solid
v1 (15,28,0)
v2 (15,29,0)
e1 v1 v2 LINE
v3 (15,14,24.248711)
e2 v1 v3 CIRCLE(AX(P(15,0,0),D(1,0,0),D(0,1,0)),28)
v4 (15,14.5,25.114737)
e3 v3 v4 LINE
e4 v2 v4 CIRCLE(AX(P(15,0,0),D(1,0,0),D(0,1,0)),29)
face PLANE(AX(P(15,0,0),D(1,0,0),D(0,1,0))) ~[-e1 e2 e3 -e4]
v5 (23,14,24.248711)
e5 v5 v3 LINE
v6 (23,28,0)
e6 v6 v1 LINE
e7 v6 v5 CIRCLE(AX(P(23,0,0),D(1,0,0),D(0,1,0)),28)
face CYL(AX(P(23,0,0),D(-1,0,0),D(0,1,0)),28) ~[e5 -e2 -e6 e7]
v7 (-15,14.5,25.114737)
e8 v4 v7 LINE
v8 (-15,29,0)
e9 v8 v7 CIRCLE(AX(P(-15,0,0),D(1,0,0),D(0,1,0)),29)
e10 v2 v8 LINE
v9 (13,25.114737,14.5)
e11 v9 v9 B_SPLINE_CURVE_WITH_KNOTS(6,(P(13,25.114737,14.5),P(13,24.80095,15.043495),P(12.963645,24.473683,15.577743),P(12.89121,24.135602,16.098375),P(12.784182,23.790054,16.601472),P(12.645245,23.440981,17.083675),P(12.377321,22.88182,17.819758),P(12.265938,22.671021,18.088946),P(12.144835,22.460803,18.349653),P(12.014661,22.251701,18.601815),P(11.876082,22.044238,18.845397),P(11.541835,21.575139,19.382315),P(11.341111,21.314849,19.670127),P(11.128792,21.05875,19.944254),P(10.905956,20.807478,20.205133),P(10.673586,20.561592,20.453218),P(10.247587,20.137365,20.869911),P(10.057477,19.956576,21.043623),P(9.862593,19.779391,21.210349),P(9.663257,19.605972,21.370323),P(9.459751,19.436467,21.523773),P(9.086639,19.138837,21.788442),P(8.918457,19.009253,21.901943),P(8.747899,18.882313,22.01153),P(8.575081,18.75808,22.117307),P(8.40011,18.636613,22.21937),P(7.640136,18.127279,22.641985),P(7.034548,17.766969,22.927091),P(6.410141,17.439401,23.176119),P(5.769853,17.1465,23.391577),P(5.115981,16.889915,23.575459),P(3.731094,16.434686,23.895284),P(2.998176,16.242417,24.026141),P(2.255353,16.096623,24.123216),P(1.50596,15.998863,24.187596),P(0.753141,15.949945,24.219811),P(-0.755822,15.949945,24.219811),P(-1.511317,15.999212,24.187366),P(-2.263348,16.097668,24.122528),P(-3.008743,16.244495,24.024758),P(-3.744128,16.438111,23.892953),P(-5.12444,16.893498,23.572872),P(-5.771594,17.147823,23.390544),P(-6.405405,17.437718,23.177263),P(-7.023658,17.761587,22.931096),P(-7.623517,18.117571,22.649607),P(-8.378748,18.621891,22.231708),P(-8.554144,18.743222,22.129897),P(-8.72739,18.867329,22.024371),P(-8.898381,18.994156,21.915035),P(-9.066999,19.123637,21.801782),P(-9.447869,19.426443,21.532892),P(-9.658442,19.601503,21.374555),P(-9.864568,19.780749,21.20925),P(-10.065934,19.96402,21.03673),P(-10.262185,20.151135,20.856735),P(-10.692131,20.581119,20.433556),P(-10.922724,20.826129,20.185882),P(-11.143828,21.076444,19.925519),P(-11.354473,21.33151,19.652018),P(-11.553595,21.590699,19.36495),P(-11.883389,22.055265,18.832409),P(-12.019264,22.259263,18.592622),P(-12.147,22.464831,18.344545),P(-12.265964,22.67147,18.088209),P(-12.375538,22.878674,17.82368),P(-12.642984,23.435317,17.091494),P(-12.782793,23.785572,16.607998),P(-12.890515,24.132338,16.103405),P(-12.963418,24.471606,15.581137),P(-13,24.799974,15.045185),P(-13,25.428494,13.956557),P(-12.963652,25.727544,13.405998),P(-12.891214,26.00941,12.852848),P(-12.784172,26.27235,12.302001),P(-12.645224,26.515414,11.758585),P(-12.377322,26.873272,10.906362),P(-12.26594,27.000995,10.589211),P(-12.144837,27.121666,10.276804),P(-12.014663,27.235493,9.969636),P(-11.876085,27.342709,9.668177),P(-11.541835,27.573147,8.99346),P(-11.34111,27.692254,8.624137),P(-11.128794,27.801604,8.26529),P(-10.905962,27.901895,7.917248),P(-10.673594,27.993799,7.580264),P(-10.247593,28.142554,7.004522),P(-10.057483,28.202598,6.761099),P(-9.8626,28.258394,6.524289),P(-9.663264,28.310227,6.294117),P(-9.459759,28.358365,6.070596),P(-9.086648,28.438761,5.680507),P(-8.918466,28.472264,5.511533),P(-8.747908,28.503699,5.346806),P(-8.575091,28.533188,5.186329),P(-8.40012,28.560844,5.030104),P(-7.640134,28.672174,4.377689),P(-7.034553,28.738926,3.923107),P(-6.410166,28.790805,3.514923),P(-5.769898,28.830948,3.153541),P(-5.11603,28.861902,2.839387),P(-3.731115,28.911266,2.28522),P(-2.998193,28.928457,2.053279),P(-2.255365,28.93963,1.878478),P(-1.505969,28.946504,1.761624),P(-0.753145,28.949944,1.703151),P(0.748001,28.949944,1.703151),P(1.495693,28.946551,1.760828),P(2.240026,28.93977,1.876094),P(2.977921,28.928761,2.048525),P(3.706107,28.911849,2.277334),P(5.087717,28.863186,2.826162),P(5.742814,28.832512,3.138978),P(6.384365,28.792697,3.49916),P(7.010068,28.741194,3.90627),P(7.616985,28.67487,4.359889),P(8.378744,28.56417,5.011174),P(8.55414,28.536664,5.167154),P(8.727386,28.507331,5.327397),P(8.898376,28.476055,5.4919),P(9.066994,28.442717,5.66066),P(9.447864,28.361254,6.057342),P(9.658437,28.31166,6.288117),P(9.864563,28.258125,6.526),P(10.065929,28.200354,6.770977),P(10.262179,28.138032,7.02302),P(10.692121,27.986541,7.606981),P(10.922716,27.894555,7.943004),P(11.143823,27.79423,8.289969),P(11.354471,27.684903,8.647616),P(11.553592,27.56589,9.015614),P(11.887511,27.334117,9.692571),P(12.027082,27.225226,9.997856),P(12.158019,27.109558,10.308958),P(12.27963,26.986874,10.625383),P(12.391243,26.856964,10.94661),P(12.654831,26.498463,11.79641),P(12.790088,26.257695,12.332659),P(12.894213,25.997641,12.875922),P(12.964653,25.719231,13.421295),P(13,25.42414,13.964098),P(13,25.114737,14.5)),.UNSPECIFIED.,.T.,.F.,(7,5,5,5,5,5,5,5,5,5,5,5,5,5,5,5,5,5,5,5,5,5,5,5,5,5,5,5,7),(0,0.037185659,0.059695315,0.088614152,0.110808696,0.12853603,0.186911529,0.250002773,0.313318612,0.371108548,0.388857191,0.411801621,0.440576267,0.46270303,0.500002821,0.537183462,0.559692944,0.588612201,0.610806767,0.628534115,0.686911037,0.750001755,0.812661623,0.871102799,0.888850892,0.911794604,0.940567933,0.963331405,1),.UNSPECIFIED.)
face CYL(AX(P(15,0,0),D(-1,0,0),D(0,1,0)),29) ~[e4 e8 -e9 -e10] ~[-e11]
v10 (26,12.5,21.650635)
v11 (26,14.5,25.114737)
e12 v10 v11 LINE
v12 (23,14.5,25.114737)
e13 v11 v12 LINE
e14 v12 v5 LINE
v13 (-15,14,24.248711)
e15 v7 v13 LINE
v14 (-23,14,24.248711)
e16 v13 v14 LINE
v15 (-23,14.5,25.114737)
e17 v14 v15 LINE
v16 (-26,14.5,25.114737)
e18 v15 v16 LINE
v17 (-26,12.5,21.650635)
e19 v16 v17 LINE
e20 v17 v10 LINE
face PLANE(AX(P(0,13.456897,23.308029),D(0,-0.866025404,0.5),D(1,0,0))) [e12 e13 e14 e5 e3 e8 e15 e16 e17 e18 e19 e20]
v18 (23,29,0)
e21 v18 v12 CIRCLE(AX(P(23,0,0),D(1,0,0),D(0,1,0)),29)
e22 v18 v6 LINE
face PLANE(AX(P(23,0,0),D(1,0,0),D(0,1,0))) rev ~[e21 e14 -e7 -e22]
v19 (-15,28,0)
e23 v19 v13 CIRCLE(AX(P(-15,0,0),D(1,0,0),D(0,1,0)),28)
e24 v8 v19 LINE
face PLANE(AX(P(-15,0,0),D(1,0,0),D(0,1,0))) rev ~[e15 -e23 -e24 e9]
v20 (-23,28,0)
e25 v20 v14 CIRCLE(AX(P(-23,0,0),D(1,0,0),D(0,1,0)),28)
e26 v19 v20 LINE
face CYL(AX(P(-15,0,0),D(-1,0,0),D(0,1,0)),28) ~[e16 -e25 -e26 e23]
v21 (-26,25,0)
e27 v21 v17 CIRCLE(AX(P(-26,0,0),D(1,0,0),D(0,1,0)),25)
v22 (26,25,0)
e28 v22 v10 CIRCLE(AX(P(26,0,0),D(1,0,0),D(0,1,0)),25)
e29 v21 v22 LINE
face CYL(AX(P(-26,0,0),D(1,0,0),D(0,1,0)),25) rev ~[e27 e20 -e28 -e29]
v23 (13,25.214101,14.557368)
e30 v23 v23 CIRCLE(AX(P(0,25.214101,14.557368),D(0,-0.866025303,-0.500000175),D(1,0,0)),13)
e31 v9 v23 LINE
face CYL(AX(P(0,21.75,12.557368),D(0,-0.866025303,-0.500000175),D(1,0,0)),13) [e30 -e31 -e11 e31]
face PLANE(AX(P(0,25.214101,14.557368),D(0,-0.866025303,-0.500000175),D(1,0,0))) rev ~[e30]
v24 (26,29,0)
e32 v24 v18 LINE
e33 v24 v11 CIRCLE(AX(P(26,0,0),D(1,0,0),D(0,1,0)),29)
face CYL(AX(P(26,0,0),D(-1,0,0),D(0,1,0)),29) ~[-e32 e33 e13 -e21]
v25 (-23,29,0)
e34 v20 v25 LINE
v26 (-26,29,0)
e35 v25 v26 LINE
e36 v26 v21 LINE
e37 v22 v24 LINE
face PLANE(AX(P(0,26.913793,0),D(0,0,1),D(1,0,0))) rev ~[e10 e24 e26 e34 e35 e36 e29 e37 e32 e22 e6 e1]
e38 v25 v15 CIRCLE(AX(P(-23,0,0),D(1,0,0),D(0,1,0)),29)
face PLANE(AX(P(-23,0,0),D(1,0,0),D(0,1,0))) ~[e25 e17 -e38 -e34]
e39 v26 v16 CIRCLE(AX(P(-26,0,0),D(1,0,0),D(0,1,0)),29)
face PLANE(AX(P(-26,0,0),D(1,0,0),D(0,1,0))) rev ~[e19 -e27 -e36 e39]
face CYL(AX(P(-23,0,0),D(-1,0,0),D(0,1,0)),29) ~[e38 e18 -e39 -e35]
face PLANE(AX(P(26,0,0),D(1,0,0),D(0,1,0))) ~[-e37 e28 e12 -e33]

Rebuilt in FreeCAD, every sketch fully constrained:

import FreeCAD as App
import Part
import Sketcher

V = App.Vector
Q = App.Units.Quantity

doc = App.newDocument("Part")
params = doc.addObject("Spreadsheet::Sheet", "Params")
for row, (alias, value) in enumerate([
    ("sketch1_width", "52 mm"),
    ("sketch1_width2", "3 mm"),
    ("sketch1_width3", "8 mm"),
    ("sketch1_height", "4 mm"),
    ("sketch1_height2", "1 mm"),
    ("revolution_angle", "60 deg"),
    ("sketch2_diameter", "26 mm"),
    ("pad1_length", "4 mm"),
], start=1):
    params.set(f"A{row}", alias)
    params.set(f"B{row}", "=" + value)
    params.setAlias(f"B{row}", alias)

body = doc.addObject("PartDesign::Body", "Body")

# Sketch on XY plane
sketch1 = body.newObject("Sketcher::SketchObject", "Sketch")
sketch1.AttachmentSupport = (doc.getObject("XY_Plane"), [""])
sketch1.MapMode = "FlatFace"
sketch1.addGeometry(Part.LineSegment(V(-26, 25, 0), V(26, 25, 0)), False)
sketch1.addGeometry(Part.LineSegment(V(26, 25, 0), V(26, 29, 0)), False)
sketch1.addGeometry(Part.LineSegment(V(26, 29, 0), V(23, 29, 0)), False)
sketch1.addGeometry(Part.LineSegment(V(23, 29, 0), V(23, 28, 0)), False)
sketch1.addGeometry(Part.LineSegment(V(23, 28, 0), V(15, 28, 0)), False)
sketch1.addGeometry(Part.LineSegment(V(15, 28, 0), V(15, 29, 0)), False)
sketch1.addGeometry(Part.LineSegment(V(15, 29, 0), V(-15, 29, 0)), False)
sketch1.addGeometry(Part.LineSegment(V(-15, 29, 0), V(-15, 28, 0)), False)
sketch1.addGeometry(Part.LineSegment(V(-15, 28, 0), V(-23, 28, 0)), False)
sketch1.addGeometry(Part.LineSegment(V(-23, 28, 0), V(-23, 29, 0)), False)
sketch1.addGeometry(Part.LineSegment(V(-23, 29, 0), V(-26, 29, 0)), False)
sketch1.addGeometry(Part.LineSegment(V(-26, 29, 0), V(-26, 25, 0)), False)
sketch1.addConstraint(Sketcher.Constraint("Coincident", 0, 2, 1, 1))
sketch1.addConstraint(Sketcher.Constraint("Coincident", 1, 2, 2, 1))
sketch1.addConstraint(Sketcher.Constraint("Coincident", 2, 2, 3, 1))
sketch1.addConstraint(Sketcher.Constraint("Coincident", 3, 2, 4, 1))
sketch1.addConstraint(Sketcher.Constraint("Coincident", 4, 2, 5, 1))
sketch1.addConstraint(Sketcher.Constraint("Coincident", 5, 2, 6, 1))
sketch1.addConstraint(Sketcher.Constraint("Coincident", 6, 2, 7, 1))
sketch1.addConstraint(Sketcher.Constraint("Coincident", 7, 2, 8, 1))
sketch1.addConstraint(Sketcher.Constraint("Coincident", 8, 2, 9, 1))
sketch1.addConstraint(Sketcher.Constraint("Coincident", 9, 2, 10, 1))
sketch1.addConstraint(Sketcher.Constraint("Coincident", 10, 2, 11, 1))
sketch1.addConstraint(Sketcher.Constraint("Coincident", 11, 2, 0, 1))
sketch1.addConstraint(Sketcher.Constraint("Horizontal", 0))
sketch1.addConstraint(Sketcher.Constraint("Vertical", 1))
sketch1.addConstraint(Sketcher.Constraint("Horizontal", 2))
sketch1.addConstraint(Sketcher.Constraint("Vertical", 3))
sketch1.addConstraint(Sketcher.Constraint("Horizontal", 4))
sketch1.addConstraint(Sketcher.Constraint("Vertical", 5))
sketch1.addConstraint(Sketcher.Constraint("Horizontal", 6))
sketch1.addConstraint(Sketcher.Constraint("Vertical", 7))
sketch1.addConstraint(Sketcher.Constraint("Horizontal", 8))
sketch1.addConstraint(Sketcher.Constraint("Vertical", 9))
sketch1.addConstraint(Sketcher.Constraint("Horizontal", 10))
sketch1.addConstraint(Sketcher.Constraint("Vertical", 11))
sketch1.addConstraint(Sketcher.Constraint("Symmetric", 4, 2, 7, 2, -2))
sketch1.addConstraint(Sketcher.Constraint("Symmetric", 2, 2, 9, 2, -2))
sketch1.addConstraint(Sketcher.Constraint("Horizontal", 2, 2, 5, 2))
sketch1.addConstraint(Sketcher.Constraint("Equal", 2, 10))
sketch1.addConstraint(Sketcher.Constraint("DistanceX", 0, 1, 0, 2, Q("52 mm")))
sketch1.addConstraint(Sketcher.Constraint("DistanceX", 2, 2, 2, 1, Q("3 mm")))
sketch1.addConstraint(Sketcher.Constraint("DistanceX", 4, 2, 4, 1, Q("8 mm")))
sketch1.addConstraint(Sketcher.Constraint("DistanceY", 1, 1, 1, 2, Q("4 mm")))
sketch1.addConstraint(Sketcher.Constraint("DistanceY", 3, 2, 3, 1, Q("1 mm")))
sketch1.addConstraint(Sketcher.Constraint("DistanceY", -1, 1, 0, 2, Q("25 mm")))
sketch1.setExpression("Constraints[28]", "Params.sketch1_width")
sketch1.setExpression("Constraints[29]", "Params.sketch1_width2")
sketch1.setExpression("Constraints[30]", "Params.sketch1_width3")
sketch1.setExpression("Constraints[31]", "Params.sketch1_height")
sketch1.setExpression("Constraints[32]", "Params.sketch1_height2")
revolution = body.newObject("PartDesign::Revolution", "Revolution")
revolution.Profile = sketch1
revolution.ReferenceAxis = (sketch1, ["H_Axis"])
revolution.setExpression("Angle", "Params.revolution_angle")

# Sketch on an angled plane
sketch2 = body.newObject("Sketcher::SketchObject", "Sketch001")
sketch2.Placement = App.Placement(V(0.333333, 24.166667, 8.371579), App.Rotation(V(1, 0, 0), V(0, -0.500000175, 0.866025303), V(0, -0.866025303, -0.500000175), "ZXY"))
sketch2.addGeometry(Part.Circle(V(0, 5, 0), V(0, 0, 1), 13), False)
sketch2.addConstraint(Sketcher.Constraint("Diameter", 0, Q("26 mm")))
sketch2.addConstraint(Sketcher.Constraint("DistanceX", 0, 3, -1, 1, Q("0.333333 mm")))
sketch2.addConstraint(Sketcher.Constraint("DistanceY", -1, 1, 0, 3, Q("4.833333 mm")))
sketch2.setExpression("Constraints[0]", "Params.sketch2_diameter")
pad1 = body.newObject("PartDesign::Pad", "Pad")
pad1.Profile = sketch2
pad1.setExpression("Length", "Params.pad1_length")
pad1.Reversed = True

doc.recompute()
